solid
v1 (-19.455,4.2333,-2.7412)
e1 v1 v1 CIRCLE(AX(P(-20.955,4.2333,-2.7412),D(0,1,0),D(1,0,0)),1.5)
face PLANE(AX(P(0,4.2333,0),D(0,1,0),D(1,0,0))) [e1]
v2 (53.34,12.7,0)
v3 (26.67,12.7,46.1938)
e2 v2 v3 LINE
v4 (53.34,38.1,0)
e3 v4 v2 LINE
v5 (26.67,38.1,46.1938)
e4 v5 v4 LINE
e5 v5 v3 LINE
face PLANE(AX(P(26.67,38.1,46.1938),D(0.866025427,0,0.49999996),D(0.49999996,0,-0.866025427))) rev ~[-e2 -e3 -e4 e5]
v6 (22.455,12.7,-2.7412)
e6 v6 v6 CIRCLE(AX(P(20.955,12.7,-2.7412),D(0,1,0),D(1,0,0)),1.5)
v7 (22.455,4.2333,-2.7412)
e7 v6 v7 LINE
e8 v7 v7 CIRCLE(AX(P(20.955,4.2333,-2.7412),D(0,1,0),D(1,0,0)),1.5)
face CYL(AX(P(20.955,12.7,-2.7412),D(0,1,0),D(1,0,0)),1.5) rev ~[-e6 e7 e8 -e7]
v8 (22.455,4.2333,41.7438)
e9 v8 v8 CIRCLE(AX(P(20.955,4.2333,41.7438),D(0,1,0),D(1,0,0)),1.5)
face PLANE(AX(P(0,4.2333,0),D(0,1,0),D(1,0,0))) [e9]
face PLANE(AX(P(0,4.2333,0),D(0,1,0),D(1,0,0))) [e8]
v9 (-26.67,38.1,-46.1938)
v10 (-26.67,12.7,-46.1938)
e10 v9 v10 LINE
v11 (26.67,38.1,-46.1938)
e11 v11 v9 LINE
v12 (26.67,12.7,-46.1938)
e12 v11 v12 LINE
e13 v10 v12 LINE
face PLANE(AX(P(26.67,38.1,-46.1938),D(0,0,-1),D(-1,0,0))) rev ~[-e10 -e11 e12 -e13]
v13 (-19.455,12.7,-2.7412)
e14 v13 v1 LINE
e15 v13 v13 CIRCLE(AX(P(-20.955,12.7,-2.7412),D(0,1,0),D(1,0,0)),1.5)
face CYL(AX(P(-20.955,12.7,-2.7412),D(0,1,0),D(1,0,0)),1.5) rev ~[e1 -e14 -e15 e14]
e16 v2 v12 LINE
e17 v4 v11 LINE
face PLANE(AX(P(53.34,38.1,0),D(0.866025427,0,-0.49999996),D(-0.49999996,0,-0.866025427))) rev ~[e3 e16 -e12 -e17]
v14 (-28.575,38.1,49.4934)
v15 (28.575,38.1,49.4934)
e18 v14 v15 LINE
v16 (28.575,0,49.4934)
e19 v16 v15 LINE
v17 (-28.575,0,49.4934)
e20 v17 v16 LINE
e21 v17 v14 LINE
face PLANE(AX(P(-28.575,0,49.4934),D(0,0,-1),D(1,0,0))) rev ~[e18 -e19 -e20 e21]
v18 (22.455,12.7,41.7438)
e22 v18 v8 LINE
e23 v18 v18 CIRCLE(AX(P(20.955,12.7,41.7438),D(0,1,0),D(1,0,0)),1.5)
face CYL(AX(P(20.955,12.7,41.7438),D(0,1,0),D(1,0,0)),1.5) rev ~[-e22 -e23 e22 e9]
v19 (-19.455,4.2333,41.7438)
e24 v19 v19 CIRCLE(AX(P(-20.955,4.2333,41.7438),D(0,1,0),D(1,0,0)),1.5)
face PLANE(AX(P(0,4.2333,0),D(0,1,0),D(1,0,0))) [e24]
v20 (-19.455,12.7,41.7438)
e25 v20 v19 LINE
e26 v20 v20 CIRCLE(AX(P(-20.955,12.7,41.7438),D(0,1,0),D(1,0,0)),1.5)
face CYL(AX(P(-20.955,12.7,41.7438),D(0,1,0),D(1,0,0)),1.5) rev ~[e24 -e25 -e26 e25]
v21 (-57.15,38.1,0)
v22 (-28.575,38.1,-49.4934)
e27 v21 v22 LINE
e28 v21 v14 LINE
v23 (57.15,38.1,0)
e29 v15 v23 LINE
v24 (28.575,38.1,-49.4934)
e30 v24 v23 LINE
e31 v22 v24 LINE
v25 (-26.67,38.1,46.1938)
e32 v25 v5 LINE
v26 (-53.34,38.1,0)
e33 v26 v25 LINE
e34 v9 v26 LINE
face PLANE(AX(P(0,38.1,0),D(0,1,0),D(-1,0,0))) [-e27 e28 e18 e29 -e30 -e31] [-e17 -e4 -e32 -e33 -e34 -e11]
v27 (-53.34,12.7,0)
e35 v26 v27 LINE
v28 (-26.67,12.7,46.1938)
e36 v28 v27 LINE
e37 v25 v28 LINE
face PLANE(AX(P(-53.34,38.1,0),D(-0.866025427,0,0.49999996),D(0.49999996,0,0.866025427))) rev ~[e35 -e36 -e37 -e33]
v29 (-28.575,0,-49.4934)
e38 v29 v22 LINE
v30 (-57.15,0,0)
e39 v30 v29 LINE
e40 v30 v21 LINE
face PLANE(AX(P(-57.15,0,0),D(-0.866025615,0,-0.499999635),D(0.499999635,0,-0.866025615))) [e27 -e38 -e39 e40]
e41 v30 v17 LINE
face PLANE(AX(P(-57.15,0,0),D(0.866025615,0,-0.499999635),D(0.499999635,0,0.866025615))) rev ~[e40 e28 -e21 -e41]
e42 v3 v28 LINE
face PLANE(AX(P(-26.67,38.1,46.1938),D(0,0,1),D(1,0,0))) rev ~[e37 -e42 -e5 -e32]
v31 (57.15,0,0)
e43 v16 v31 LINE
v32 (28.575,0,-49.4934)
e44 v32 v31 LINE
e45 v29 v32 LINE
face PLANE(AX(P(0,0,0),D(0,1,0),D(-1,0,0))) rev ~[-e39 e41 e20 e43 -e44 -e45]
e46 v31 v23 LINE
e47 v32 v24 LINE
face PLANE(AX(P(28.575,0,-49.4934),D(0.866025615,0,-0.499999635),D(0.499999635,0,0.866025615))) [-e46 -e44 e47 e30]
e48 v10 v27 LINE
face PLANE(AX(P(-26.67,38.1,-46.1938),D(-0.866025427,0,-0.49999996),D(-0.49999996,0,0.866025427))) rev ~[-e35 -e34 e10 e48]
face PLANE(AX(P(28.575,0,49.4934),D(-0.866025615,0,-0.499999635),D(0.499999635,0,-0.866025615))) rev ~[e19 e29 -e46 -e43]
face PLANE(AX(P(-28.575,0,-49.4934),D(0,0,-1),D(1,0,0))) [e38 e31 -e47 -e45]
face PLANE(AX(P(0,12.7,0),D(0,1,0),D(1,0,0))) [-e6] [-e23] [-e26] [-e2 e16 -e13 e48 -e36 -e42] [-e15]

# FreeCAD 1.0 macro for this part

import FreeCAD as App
import Part
import Sketcher
Q = App.Units.Quantity


def add_polygon(sketch, points):
    """Adds a closed chain of lines whose ends are joined by coincident constraints."""
    first, n = sketch.GeometryCount, len(points)
    for a, b in zip(points, points[1:] + points[:1]):
        sketch.addGeometry(Part.LineSegment(App.Vector(*a, 0), App.Vector(*b, 0)), False)
    for i in range(n):
        sketch.addConstraint(Sketcher.Constraint("Coincident", first + i, 2, first + (i + 1) % n, 1))

doc = App.newDocument("Part")
params = doc.addObject("Spreadsheet::Sheet", "Params")
for row, (alias, value) in enumerate([
    ("sketch1_width", "2.25 in"),
    ("sketch1_length", "2.25 in"),
    ("pad1_length", "1.5 in"),
    ("sketch2_width", "2.1 in"),
    ("sketch2_length", "2.1 in"),
    ("pocket1_length", "1.25 in"),
    ("sketch3_width", "2.1 in"),
    ("sketch3_length", "2.1 in"),
    ("pad2_length", "0.25 in"),
    ("pocket2_length", "8.4667 mm"),
], start=1):
    params.set(f"A{row}", alias)
    params.set(f"B{row}", "=" + value)
    params.setAlias(f"B{row}", alias)

body = doc.addObject("PartDesign::Body", "Body")

sketch1 = body.newObject("Sketcher::SketchObject", "Sketch")
sketch1.AttachmentSupport = (doc.getObject("XZ_Plane"), [""])
sketch1.MapMode = "FlatFace"
add_polygon(sketch1, [(-28.575, -49.4934), (-57.15, 0), (-28.575, 49.4934), (28.575, 49.4934), (57.15, 0), (28.575, -49.4934)])
sketch1.addConstraint([
    Sketcher.Constraint("Horizontal", 2),
    Sketcher.Constraint("Horizontal", 5),
    Sketcher.Constraint("Symmetric", 0, 2, 3, 2, -1, 1),
    Sketcher.Constraint("Symmetric", 1, 2, 4, 2, -1, 1),
    Sketcher.Constraint("PointOnObject", 0, 2, -1),
    Sketcher.Constraint("Parallel", 0, 3),
    Sketcher.Constraint("Vertical", 2, 2, 4, 2),
    Sketcher.Constraint("DistanceX", 2, 1, 2, 2, Q("2.25 in")),
    Sketcher.Constraint("Distance", 0, Q("2.25 in")),
    Sketcher.Constraint("DistanceX", 0, 2, -1, 1, Q("2.25 in")),
])
sketch1.setExpression("Constraints[13]", "Params.sketch1_width")
sketch1.setExpression("Constraints[14]", "Params.sketch1_length")
pad1 = body.newObject("PartDesign::Pad", "Pad")
pad1.Profile = sketch1
pad1.setExpression("Length", "Params.pad1_length")
pad1.Reversed = True

sketch2 = body.newObject("Sketcher::SketchObject", "Sketch001")
sketch2.AttachmentSupport = (doc.getObject("XZ_Plane"), [""])
sketch2.MapMode = "FlatFace"
sketch2.AttachmentOffset = App.Placement(App.Vector(0, 0, -1.5 * 25.4), App.Rotation())
add_polygon(sketch2, [(-26.67, -46.1938), (-53.34, 0), (-26.67, 46.1938), (26.67, 46.1938), (53.34, 0), (26.67, -46.1938)])
sketch2.addConstraint([
    Sketcher.Constraint("Horizontal", 2),
    Sketcher.Constraint("Horizontal", 5),
    Sketcher.Constraint("Symmetric", 0, 2, 3, 2, -1, 1),
    Sketcher.Constraint("Symmetric", 1, 2, 4, 2, -1, 1),
    Sketcher.Constraint("PointOnObject", 0, 2, -1),
    Sketcher.Constraint("Parallel", 0, 3),
    Sketcher.Constraint("Vertical", 2, 2, 4, 2),
    Sketcher.Constraint("DistanceX", 2, 1, 2, 2, Q("2.1 in")),
    Sketcher.Constraint("Angle", 1, Q("60 deg")),
    Sketcher.Constraint("Distance", 0, Q("2.1 in")),
])
sketch2.setExpression("Constraints[13]", "Params.sketch2_width")
sketch2.setExpression("Constraints[15]", "Params.sketch2_length")
pocket1 = body.newObject("PartDesign::Pocket", "Pocket")
pocket1.Profile = sketch2
pocket1.setExpression("Length", "Params.pocket1_length")
pocket1.Reversed = True

sketch3 = body.newObject("Sketcher::SketchObject", "Sketch002")
sketch3.AttachmentSupport = (doc.getObject("XZ_Plane"), [""])
sketch3.MapMode = "FlatFace"
sketch3.AttachmentOffset = App.Placement(App.Vector(0, 0, -0.25 * 25.4), App.Rotation())
add_polygon(sketch3, [(-26.67, 46.1938), (26.67, 46.1938), (53.34, 0), (26.67, -46.1938), (-26.67, -46.1938), (-53.34, 0)])
sketch3.addConstraint([
    Sketcher.Constraint("Horizontal", 0),
    Sketcher.Constraint("Horizontal", 3),
    Sketcher.Constraint("Symmetric", 0, 2, 3, 2, -1, 1),
    Sketcher.Constraint("Symmetric", 1, 2, 4, 2, -1, 1),
    Sketcher.Constraint("PointOnObject", 1, 2, -1),
    Sketcher.Constraint("Parallel", 2, 5),
    Sketcher.Constraint("Vertical", 0, 2, 2, 2),
    Sketcher.Constraint("DistanceX", 0, 1, 0, 2, Q("2.1 in")),
    Sketcher.Constraint("Angle", 1, Q("-60 deg")),
    Sketcher.Constraint("Distance", 1, Q("2.1 in")),
])
sketch3.setExpression("Constraints[13]", "Params.sketch3_width")
sketch3.setExpression("Constraints[15]", "Params.sketch3_length")
pad2 = body.newObject("PartDesign::Pad", "Pad001")
pad2.Profile = sketch3
pad2.setExpression("Length", "Params.pad2_length")
pad2.Reversed = True

sketch4 = body.newObject("Sketcher::SketchObject", "Sketch003")
sketch4.AttachmentSupport = (doc.getObject("XZ_Plane"), [""])
sketch4.MapMode = "FlatFace"
sketch4.AttachmentOffset = App.Placement(App.Vector(0, 0, -0.5 * 25.4), App.Rotation())
sketch4.addGeometry([
    Part.Circle(App.Vector(-20.955, 41.7438, 0), App.Vector(0, 0, 1), 1.5),
    Part.Circle(App.Vector(20.955, 41.7438, 0), App.Vector(0, 0, 1), 1.5),
    Part.Circle(App.Vector(-20.955, -2.7412, 0), App.Vector(0, 0, 1), 1.5),
    Part.Circle(App.Vector(20.955, -2.7412, 0), App.Vector(0, 0, 1), 1.5),
], False)
sketch4.addConstraint([
    Sketcher.Constraint("Equal", 0, 1),
    Sketcher.Constraint("Equal", 1, 2),
    Sketcher.Constraint("Equal", 2, 3),
    Sketcher.Constraint("Symmetric", 0, 3, 1, 3, -2),
    Sketcher.Constraint("Symmetric", 2, 3, 3, 3, -2),
    Sketcher.Constraint("Vertical", 0, 3, 2, 3),
    Sketcher.Constraint("Diameter", 0, Q("0.1181 in")),
    Sketcher.Constraint("DistanceX", 0, 3, 1, 3, Q("1.65 in")),
    Sketcher.Constraint("DistanceY", 2, 3, 0, 3, Q("44.485 mm")),
    Sketcher.Constraint("DistanceY", -1, 1, 0, 3, Q("41.7438 mm")),
])
pocket2 = body.newObject("PartDesign::Pocket", "Pocket001")
pocket2.Profile = sketch4
pocket2.setExpression("Length", "Params.pocket2_length")
pocket2.Reversed = True

doc.recompute()
